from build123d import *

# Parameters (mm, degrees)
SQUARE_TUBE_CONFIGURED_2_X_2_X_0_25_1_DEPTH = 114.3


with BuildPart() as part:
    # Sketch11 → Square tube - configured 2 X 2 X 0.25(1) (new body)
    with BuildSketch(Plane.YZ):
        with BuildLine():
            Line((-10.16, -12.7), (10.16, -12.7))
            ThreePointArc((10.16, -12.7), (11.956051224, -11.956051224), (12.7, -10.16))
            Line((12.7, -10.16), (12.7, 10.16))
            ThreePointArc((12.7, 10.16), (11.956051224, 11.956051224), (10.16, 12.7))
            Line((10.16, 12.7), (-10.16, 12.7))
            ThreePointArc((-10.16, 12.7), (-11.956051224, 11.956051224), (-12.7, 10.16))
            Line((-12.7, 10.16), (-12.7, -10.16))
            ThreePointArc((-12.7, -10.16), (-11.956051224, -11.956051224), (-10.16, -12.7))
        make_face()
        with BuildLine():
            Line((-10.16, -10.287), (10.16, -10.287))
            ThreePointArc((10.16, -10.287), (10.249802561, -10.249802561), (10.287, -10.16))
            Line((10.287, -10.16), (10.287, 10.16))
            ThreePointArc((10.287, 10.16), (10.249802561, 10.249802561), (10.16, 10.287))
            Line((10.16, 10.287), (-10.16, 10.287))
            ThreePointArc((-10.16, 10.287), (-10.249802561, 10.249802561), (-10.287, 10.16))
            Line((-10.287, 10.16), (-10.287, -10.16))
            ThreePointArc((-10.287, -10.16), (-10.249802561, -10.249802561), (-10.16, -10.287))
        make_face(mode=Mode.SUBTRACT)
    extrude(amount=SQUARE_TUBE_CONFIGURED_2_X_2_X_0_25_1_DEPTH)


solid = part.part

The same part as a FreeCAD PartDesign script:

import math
import FreeCAD as App
import Part
import Sketcher
from FreeCAD import Vector
Q = App.Units.Quantity

doc = App.newDocument("Part")
params = doc.addObject("Spreadsheet::Sheet", "Params")
for row, (alias, value) in enumerate([
    ("sketch1_radius", "0.1 in"),
    ("sketch1_width", "0.8 in"),
    ("sketch1_radius2", "0.005 in"),
    ("pad1_length", "4.5 in"),
], start=1):
    params.set(f"A{row}", alias)
    params.set(f"B{row}", "=" + value)
    params.setAlias(f"B{row}", alias)

body = doc.addObject("PartDesign::Body", "Body")

# Sketch on YZ plane
sketch1 = body.newObject("Sketcher::SketchObject", "Sketch")
sketch1.AttachmentSupport = (doc.getObject("YZ_Plane"), [""])
sketch1.MapMode = "FlatFace"
sketch1.addGeometry(Part.LineSegment(Vector(-10.16, -12.7, 0), Vector(10.16, -12.7, 0)), False)
sketch1.addGeometry(Part.ArcOfCircle(Part.Circle(Vector(10.16, -10.16, 0), Vector(0, 0, 1), 2.54), math.radians(-90), math.radians(0)), False)
sketch1.addGeometry(Part.LineSegment(Vector(12.7, -10.16, 0), Vector(12.7, 10.16, 0)), False)
sketch1.addGeometry(Part.ArcOfCircle(Part.Circle(Vector(10.16, 10.16, 0), Vector(0, 0, 1), 2.54), math.radians(0), math.radians(90)), False)
sketch1.addGeometry(Part.LineSegment(Vector(10.16, 12.7, 0), Vector(-10.16, 12.7, 0)), False)
sketch1.addGeometry(Part.ArcOfCircle(Part.Circle(Vector(-10.16, 10.16, 0), Vector(0, 0, 1), 2.54), math.radians(90), math.radians(180)), False)
sketch1.addGeometry(Part.LineSegment(Vector(-12.7, 10.16, 0), Vector(-12.7, -10.16, 0)), False)
sketch1.addGeometry(Part.ArcOfCircle(Part.Circle(Vector(-10.16, -10.16, 0), Vector(0, 0, 1), 2.54), math.radians(-180), math.radians(-90)), False)
sketch1.addGeometry(Part.LineSegment(Vector(10.16, -10.287, 0), Vector(-10.16, -10.287, 0)), False)
sketch1.addGeometry(Part.ArcOfCircle(Part.Circle(Vector(-10.16, -10.16, 0), Vector(0, 0, 1), 0.127), math.radians(-180), math.radians(-90)), False)
sketch1.addGeometry(Part.LineSegment(Vector(-10.287, -10.16, 0), Vector(-10.287, 10.16, 0)), False)
sketch1.addGeometry(Part.ArcOfCircle(Part.Circle(Vector(-10.16, 10.16, 0), Vector(0, 0, 1), 0.127), math.radians(90), math.radians(180)), False)
sketch1.addGeometry(Part.LineSegment(Vector(-10.16, 10.287, 0), Vector(10.16, 10.287, 0)), False)
sketch1.addGeometry(Part.ArcOfCircle(Part.Circle(Vector(10.16, 10.16, 0), Vector(0, 0, 1), 0.127), math.radians(0), math.radians(90)), False)
sketch1.addGeometry(Part.LineSegment(Vector(10.287, 10.16, 0), Vector(10.287, -10.16, 0)), False)
sketch1.addGeometry(Part.ArcOfCircle(Part.Circle(Vector(10.16, -10.16, 0), Vector(0, 0, 1), 0.127), math.radians(-90), math.radians(0)), False)
sketch1.addConstraint(Sketcher.Constraint("Tangent", 0, 2, 1, 1))
sketch1.addConstraint(Sketcher.Constraint("Tangent", 1, 2, 2, 1))
sketch1.addConstraint(Sketcher.Constraint("Tangent", 2, 2, 3, 1))
sketch1.addConstraint(Sketcher.Constraint("Tangent", 3, 2, 4, 1))
sketch1.addConstraint(Sketcher.Constraint("Tangent", 4, 2, 5, 1))
sketch1.addConstraint(Sketcher.Constraint("Tangent", 5, 2, 6, 1))
sketch1.addConstraint(Sketcher.Constraint("Tangent", 6, 2, 7, 1))
sketch1.addConstraint(Sketcher.Constraint("Tangent", 7, 2, 0, 1))
sketch1.addConstraint(Sketcher.Constraint("Tangent", 8, 2, 9, 2))
sketch1.addConstraint(Sketcher.Constraint("Tangent", 9, 1, 10, 1))
sketch1.addConstraint(Sketcher.Constraint("Tangent", 10, 2, 11, 2))
sketch1.addConstraint(Sketcher.Constraint("Tangent", 11, 1, 12, 1))
sketch1.addConstraint(Sketcher.Constraint("Tangent", 12, 2, 13, 2))
sketch1.addConstraint(Sketcher.Constraint("Tangent", 13, 1, 14, 1))
sketch1.addConstraint(Sketcher.Constraint("Tangent", 14, 2, 15, 2))
sketch1.addConstraint(Sketcher.Constraint("Tangent", 15, 1, 8, 1))
sketch1.addConstraint(Sketcher.Constraint("Horizontal", 0))
sketch1.addConstraint(Sketcher.Constraint("Vertical", 2))
sketch1.addConstraint(Sketcher.Constraint("Horizontal", 4))
sketch1.addConstraint(Sketcher.Constraint("Vertical", 6))
sketch1.addConstraint(Sketcher.Constraint("Horizontal", 8))
sketch1.addConstraint(Sketcher.Constraint("Vertical", 10))
sketch1.addConstraint(Sketcher.Constraint("Horizontal", 12))
sketch1.addConstraint(Sketcher.Constraint("Vertical", 14))
sketch1.addConstraint(Sketcher.Constraint("Coincident", 9, 3, 7, 3))
sketch1.addConstraint(Sketcher.Constraint("Coincident", 11, 3, 5, 3))
sketch1.addConstraint(Sketcher.Constraint("Coincident", 13, 3, 3, 3))
sketch1.addConstraint(Sketcher.Constraint("Equal", 1, 3))
sketch1.addConstraint(Sketcher.Constraint("Equal", 3, 5))
sketch1.addConstraint(Sketcher.Constraint("Equal", 5, 7))
sketch1.addConstraint(Sketcher.Constraint("Equal", 13, 15))
sketch1.addConstraint(Sketcher.Constraint("Symmetric", 1, 3, 5, 3, -1, 1))
sketch1.addConstraint(Sketcher.Constraint("Equal", 12, 2))
sketch1.addConstraint(Sketcher.Constraint("Radius", 1, Q("0.1 in")))
sketch1.addConstraint(Sketcher.Constraint("DistanceX", 0, 1, 0, 2, Q("0.8 in")))
sketch1.addConstraint(Sketcher.Constraint("Radius", 9, Q("0.005 in")))
sketch1.setExpression("Constraints[33]", "Params.sketch1_radius")
sketch1.setExpression("Constraints[34]", "Params.sketch1_width")
sketch1.setExpression("Constraints[35]", "Params.sketch1_radius2")
pad1 = body.newObject("PartDesign::Pad", "Pad")
pad1.Profile = sketch1
pad1.setExpression("Length", "Params.pad1_length")

doc.recompute()
